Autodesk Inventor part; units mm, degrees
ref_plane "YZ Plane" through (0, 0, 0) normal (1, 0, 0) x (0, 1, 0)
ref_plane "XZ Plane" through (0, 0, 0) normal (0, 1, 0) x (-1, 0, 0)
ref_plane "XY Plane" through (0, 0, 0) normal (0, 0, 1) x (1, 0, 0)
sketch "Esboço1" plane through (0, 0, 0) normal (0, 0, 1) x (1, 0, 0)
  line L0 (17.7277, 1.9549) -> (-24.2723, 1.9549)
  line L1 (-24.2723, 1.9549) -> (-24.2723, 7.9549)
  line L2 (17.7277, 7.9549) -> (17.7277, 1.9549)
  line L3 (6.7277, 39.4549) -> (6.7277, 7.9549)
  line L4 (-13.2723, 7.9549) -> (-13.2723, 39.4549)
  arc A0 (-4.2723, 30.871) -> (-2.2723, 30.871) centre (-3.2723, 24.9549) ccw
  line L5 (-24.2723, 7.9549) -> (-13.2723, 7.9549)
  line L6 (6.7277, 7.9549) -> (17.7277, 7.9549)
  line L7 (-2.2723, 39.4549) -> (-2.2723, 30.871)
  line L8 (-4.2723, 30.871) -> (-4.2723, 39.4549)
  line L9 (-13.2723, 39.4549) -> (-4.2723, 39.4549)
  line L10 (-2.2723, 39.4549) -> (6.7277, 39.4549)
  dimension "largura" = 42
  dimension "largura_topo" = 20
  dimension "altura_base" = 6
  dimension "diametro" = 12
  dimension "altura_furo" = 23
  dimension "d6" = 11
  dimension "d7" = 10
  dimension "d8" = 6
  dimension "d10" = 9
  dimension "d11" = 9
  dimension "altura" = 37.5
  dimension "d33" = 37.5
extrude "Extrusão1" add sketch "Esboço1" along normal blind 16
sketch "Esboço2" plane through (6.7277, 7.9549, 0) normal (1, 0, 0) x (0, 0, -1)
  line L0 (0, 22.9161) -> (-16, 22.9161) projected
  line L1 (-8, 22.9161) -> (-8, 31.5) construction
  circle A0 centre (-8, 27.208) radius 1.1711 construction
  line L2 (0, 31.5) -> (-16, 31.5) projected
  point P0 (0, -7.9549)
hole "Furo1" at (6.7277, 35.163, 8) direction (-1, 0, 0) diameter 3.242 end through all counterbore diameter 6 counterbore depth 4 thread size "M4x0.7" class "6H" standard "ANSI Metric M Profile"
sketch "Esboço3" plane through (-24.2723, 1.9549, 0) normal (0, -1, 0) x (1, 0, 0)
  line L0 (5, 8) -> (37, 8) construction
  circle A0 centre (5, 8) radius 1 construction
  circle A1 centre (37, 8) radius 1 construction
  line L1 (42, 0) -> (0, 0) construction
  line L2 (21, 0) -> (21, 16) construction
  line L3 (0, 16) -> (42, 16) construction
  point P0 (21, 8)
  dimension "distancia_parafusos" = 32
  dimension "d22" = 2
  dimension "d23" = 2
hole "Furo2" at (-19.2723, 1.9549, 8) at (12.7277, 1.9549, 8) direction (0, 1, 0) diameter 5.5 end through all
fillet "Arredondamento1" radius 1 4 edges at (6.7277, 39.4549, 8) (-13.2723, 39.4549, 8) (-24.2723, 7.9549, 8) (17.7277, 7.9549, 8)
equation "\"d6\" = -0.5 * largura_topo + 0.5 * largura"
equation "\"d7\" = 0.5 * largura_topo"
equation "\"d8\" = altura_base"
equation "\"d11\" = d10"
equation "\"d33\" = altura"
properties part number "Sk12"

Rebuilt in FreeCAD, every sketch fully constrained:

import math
import FreeCAD as App
import Part
import Sketcher

V = App.Vector


def edges_at(feature, points):
    """Names of the edges that pass closest to the given points."""
    edges = feature.Shape.Edges
    near = lambda p: min(range(len(edges)), key=lambda i: edges[i].distToShape(Part.Vertex(*p))[0])
    return sorted({f"Edge{near(p) + 1}" for p in points})

doc = App.newDocument("Part")
body = doc.addObject("PartDesign::Body", "Body")

# Sketch on XY plane
sketch1 = doc.addObject("Sketcher::SketchObject", "Sketch")
body.addObject(sketch1)
sketch1.AttachmentSupport = (doc.XY_Plane, [""])
sketch1.MapMode = "FlatFace"
sketch1.addGeometry([
    Part.LineSegment(V(-24.3, 2, 0), V(17.7, 2, 0)),  # 0
    Part.LineSegment(V(17.7, 2, 0), V(17.7, 8, 0)),  # 1
    Part.LineSegment(V(17.7, 8, 0), V(6.7, 8, 0)),  # 2
    Part.LineSegment(V(6.7, 8, 0), V(6.7, 39.5, 0)),  # 3
    Part.LineSegment(V(6.7, 39.5, 0), V(-2.3, 39.5, 0)),  # 4
    Part.LineSegment(V(-2.3, 39.5, 0), V(-2.3, 30.9, 0)),  # 5
    Part.ArcOfCircle(Part.Circle(V(-3.3, 25, 0), V(0, 0, 1), 6), math.radians(100), math.radians(440)),  # 6
    Part.LineSegment(V(-4.3, 30.9, 0), V(-4.3, 39.5, 0)),  # 7
    Part.LineSegment(V(-4.3, 39.5, 0), V(-13.3, 39.5, 0)),  # 8
    Part.LineSegment(V(-13.3, 39.5, 0), V(-13.3, 8, 0)),  # 9
    Part.LineSegment(V(-13.3, 8, 0), V(-24.3, 8, 0)),  # 10
    Part.LineSegment(V(-24.3, 8, 0), V(-24.3, 2, 0)),  # 11
], False)
sketch1.addConstraint([
    Sketcher.Constraint("Coincident", 0, 2, 1, 1),
    Sketcher.Constraint("Coincident", 1, 2, 2, 1),
    Sketcher.Constraint("Coincident", 2, 2, 3, 1),
    Sketcher.Constraint("Coincident", 3, 2, 4, 1),
    Sketcher.Constraint("Coincident", 4, 2, 5, 1),
    Sketcher.Constraint("Coincident", 5, 2, 6, 2),
    Sketcher.Constraint("Coincident", 6, 1, 7, 1),
    Sketcher.Constraint("Coincident", 7, 2, 8, 1),
    Sketcher.Constraint("Coincident", 8, 2, 9, 1),
    Sketcher.Constraint("Coincident", 9, 2, 10, 1),
    Sketcher.Constraint("Coincident", 10, 2, 11, 1),
    Sketcher.Constraint("Coincident", 11, 2, 0, 1),
    Sketcher.Constraint("Horizontal", 0),
    Sketcher.Constraint("Vertical", 1),
    Sketcher.Constraint("Horizontal", 2),
    Sketcher.Constraint("Vertical", 3),
    Sketcher.Constraint("Horizontal", 4),
    Sketcher.Constraint("Vertical", 5),
    Sketcher.Constraint("Vertical", 7),
    Sketcher.Constraint("Horizontal", 8),
    Sketcher.Constraint("Vertical", 9),
    Sketcher.Constraint("Horizontal", 10),
    Sketcher.Constraint("Vertical", 11),
    Sketcher.Constraint("Horizontal", 5, 2, 6, 1),
    Sketcher.Constraint("Horizontal", 4, 2, 7, 2),
    Sketcher.Constraint("Horizontal", 2, 2, 9, 2),
    Sketcher.Constraint("Equal", 4, 8),
    Sketcher.Constraint("Equal", 2, 10),
    Sketcher.Constraint("Radius", 6, 6.0),
    Sketcher.Constraint("DistanceX", 0, 1, 0, 2, 42.0),
    Sketcher.Constraint("DistanceX", 2, 2, 2, 1, 11.0),
    Sketcher.Constraint("DistanceX", 4, 2, 4, 1, 9.0),
    Sketcher.Constraint("DistanceY", 1, 1, 1, 2, 6.0),
    Sketcher.Constraint("DistanceY", 0, 2, 6, 3, 23.0),
    Sketcher.Constraint("DistanceY", 0, 2, 3, 2, 37.5),
    Sketcher.Constraint("DistanceY", -1, 1, 6, 3, 24.955),
    Sketcher.Constraint("DistanceX", 6, 3, -1, 1, 3.2723),
])
pad1 = doc.addObject("PartDesign::Pad", "Pad")
body.addObject(pad1)
pad1.Profile = sketch1
pad1.Length = 16

# Sketch on YZ plane
sketch2 = doc.addObject("Sketcher::SketchObject", "Sketch001")
body.addObject(sketch2)
sketch2.AttachmentSupport = (doc.YZ_Plane, [""])
sketch2.MapMode = "FlatFace"
sketch2.AttachmentOffset = App.Placement(V(0, 0, 6.7277), App.Rotation())
sketch2.addGeometry(Part.Circle(V(35.2, 8, 0), V(0, 0, 1), 1.6), False)
sketch2.addConstraint([
    Sketcher.Constraint("Diameter", 0, 3.242),
    Sketcher.Constraint("DistanceY", -1, 1, 0, 3, 8.0),
    Sketcher.Constraint("DistanceX", -1, 1, 0, 3, 35.163),
])
doc.recompute()
hole = doc.addObject("PartDesign::Hole", "Hole")
body.addObject(hole)
hole.Profile = sketch2
hole.ThreadType = "None"
hole.Diameter = 3.242
hole.DepthType = "ThroughAll"
hole.HoleCutType = "Counterbore"
hole.HoleCutDiameter = 6
hole.HoleCutDepth = 4

# Sketch on XZ plane
sketch3 = doc.addObject("Sketcher::SketchObject", "Sketch002")
body.addObject(sketch3)
sketch3.AttachmentSupport = (doc.XZ_Plane, [""])
sketch3.MapMode = "FlatFace"
sketch3.AttachmentOffset = App.Placement(V(0, 0, -1.9549), App.Rotation())
sketch3.addGeometry([
    Part.Circle(V(-19.3, 8, 0), V(0, 0, 1), 2.8),
    Part.Circle(V(12.7, 8, 0), V(0, 0, 1), 2.8),
], False)
sketch3.addConstraint([
    Sketcher.Constraint("Equal", 0, 1),
    Sketcher.Constraint("Horizontal", 0, 3, 1, 3),
    Sketcher.Constraint("Diameter", 0, 5.5),
    Sketcher.Constraint("DistanceY", -1, 1, 0, 3, 8.0),
    Sketcher.Constraint("DistanceX", 0, 3, 1, 3, 32.0),
    Sketcher.Constraint("DistanceX", 0, 3, -1, 1, 19.2723),
])
doc.recompute()
hole2 = doc.addObject("PartDesign::Hole", "Hole001")
body.addObject(hole2)
hole2.Profile = sketch3
hole2.ThreadType = "None"
hole2.Diameter = 5.5
hole2.DepthType = "ThroughAll"
doc.recompute()

fillet = doc.addObject("PartDesign::Fillet", "Fillet")
body.addObject(fillet)
fillet.Base = (hole2, edges_at(hole2, [
    (6.728, 39.455, 8),
    (-13.272, 39.455, 8),
    (-24.272, 7.955, 8),
    (17.728, 7.955, 8),
]))
fillet.Radius = 1

doc.recompute()
